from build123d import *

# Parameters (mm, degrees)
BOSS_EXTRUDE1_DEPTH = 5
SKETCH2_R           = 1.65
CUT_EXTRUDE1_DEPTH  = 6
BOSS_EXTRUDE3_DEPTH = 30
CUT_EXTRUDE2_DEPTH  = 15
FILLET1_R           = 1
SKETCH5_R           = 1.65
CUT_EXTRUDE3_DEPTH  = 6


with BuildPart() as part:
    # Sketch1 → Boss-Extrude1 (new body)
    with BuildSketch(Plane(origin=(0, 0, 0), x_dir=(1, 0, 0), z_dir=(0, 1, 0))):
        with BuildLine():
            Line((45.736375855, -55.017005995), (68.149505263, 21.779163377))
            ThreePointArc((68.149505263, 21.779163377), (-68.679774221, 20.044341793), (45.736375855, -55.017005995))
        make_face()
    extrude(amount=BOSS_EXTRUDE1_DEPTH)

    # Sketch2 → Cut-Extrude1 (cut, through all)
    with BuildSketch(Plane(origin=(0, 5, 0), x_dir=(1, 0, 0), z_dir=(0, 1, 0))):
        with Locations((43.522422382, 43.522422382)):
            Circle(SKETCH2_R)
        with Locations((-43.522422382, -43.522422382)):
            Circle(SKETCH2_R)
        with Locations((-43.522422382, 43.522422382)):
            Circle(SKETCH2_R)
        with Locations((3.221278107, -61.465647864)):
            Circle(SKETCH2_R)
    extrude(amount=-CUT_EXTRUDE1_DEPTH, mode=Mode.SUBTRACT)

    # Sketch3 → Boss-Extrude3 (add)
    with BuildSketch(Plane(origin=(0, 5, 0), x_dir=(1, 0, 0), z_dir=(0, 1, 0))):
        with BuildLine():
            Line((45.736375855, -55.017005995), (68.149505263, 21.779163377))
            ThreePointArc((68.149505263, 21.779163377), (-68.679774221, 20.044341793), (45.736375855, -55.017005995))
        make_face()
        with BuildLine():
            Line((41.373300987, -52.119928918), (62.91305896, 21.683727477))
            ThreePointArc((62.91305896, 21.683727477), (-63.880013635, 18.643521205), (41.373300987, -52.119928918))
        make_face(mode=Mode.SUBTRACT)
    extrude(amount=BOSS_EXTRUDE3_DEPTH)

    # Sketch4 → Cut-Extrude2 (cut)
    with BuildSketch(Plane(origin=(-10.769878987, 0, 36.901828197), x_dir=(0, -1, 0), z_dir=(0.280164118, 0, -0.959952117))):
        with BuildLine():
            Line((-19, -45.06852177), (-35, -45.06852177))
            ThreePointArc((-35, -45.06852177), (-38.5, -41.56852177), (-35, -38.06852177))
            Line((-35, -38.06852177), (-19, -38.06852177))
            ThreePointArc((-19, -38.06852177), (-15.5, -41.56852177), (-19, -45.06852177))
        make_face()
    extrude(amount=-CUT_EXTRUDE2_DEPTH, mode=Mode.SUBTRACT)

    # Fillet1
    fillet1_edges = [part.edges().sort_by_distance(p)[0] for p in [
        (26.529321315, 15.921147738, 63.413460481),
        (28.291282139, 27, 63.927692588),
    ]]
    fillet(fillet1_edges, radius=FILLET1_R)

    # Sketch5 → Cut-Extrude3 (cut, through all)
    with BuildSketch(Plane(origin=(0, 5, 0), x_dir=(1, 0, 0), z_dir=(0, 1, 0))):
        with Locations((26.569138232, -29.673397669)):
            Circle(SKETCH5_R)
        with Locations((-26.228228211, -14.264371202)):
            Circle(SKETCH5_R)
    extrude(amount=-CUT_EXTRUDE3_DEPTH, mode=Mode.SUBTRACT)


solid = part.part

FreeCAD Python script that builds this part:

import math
import FreeCAD as App
import Part
import Sketcher
Q = App.Units.Quantity


def edges_at(feature, points):
    """Names of the edges that pass closest to the given points."""
    edges = feature.Shape.Edges
    near = lambda p: min(range(len(edges)), key=lambda i: edges[i].distToShape(Part.Vertex(*p))[0])
    return sorted({f"Edge{near(p) + 1}" for p in points})

doc = App.newDocument("Part")
body = doc.addObject("PartDesign::Body", "Body")

# Sketch on XZ plane
sketch1 = doc.addObject("Sketcher::SketchObject", "Sketch")
body.addObject(sketch1)
sketch1.AttachmentSupport = (doc.XZ_Plane, [""])
sketch1.MapMode = "FlatFace"
sketch1.addGeometry([
    Part.LineSegment(App.Vector(45.736376, 55.017006, 0), App.Vector(68.149505, -21.779163, 0)),
    Part.ArcOfCircle(Part.Circle(App.Vector(0, 0, 0), App.Vector(0, 0, 1), 71.545), math.radians(50.262798), math.radians(342.277202)),
], False)
sketch1.addConstraint([
    Sketcher.Constraint("Coincident", 0, 1, 1, 1),
    Sketcher.Constraint("Coincident", 1, 2, 0, 2),
    Sketcher.Constraint("Coincident", 1, 3, -1, 1),
    Sketcher.Constraint("Distance", 0, 80.0),
    Sketcher.Constraint("Radius", 1, 71.545),
    Sketcher.Constraint("Angle", 0, Q("-73.73 deg")),
])
pad1 = doc.addObject("PartDesign::Pad", "Pad")
body.addObject(pad1)
pad1.Profile = sketch1
pad1.Length = 5
pad1.Reversed = True

# Sketch on XZ plane
sketch2 = doc.addObject("Sketcher::SketchObject", "Sketch001")
body.addObject(sketch2)
sketch2.AttachmentSupport = (doc.XZ_Plane, [""])
sketch2.MapMode = "FlatFace"
sketch2.AttachmentOffset = App.Placement(App.Vector(0, 0, -5), App.Rotation())
sketch2.addGeometry([
    Part.Circle(App.Vector(43.522422, -43.522422, 0), App.Vector(0, 0, 1), 1.65),
    Part.Circle(App.Vector(-43.522422, 43.522422, 0), App.Vector(0, 0, 1), 1.65),
    Part.Circle(App.Vector(-43.522422, -43.522422, 0), App.Vector(0, 0, 1), 1.65),
    Part.Circle(App.Vector(3.221278, 61.465648, 0), App.Vector(0, 0, 1), 1.65),
], False)
sketch2.addConstraint([
    Sketcher.Constraint("Equal", 0, 1),
    Sketcher.Constraint("Equal", 1, 2),
    Sketcher.Constraint("Equal", 2, 3),
    Sketcher.Constraint("Symmetric", 0, 3, 1, 3, -1, 1),
    Sketcher.Constraint("Symmetric", 0, 3, 2, 3, -2),
    Sketcher.Constraint("Diameter", 0, 3.3),
    Sketcher.Constraint("DistanceX", 1, 3, 3, 3, 46.7437),
    Sketcher.Constraint("DistanceX", -1, 1, 3, 3, 3.221278),
    Sketcher.Constraint("DistanceY", 0, 3, 3, 3, 104.98807),
    Sketcher.Constraint("DistanceY", 0, 3, -1, 1, 43.522422),
])
pocket1 = doc.addObject("PartDesign::Pocket", "Pocket")
body.addObject(pocket1)
pocket1.Profile = sketch2
pocket1.Type = "ThroughAll"
pocket1.Reversed = True

# Sketch on XZ plane
sketch3 = doc.addObject("Sketcher::SketchObject", "Sketch002")
body.addObject(sketch3)
sketch3.AttachmentSupport = (doc.XZ_Plane, [""])
sketch3.MapMode = "FlatFace"
sketch3.AttachmentOffset = App.Placement(App.Vector(0, 0, -5), App.Rotation())
sketch3.addGeometry([
    Part.LineSegment(App.Vector(45.736376, 55.017006, 0), App.Vector(68.149505, -21.779163, 0)),
    Part.ArcOfCircle(Part.Circle(App.Vector(0, 0, 0), App.Vector(0, 0, 1), 71.545), math.radians(50.262798), math.radians(342.277202)),
    Part.LineSegment(App.Vector(62.913059, -21.683727, 0), App.Vector(41.373301, 52.119929, 0)),
    Part.ArcOfCircle(Part.Circle(App.Vector(0, 0, 0), App.Vector(0, 0, 1), 66.545), math.radians(51.557116), math.radians(340.982884)),
], False)
sketch3.addConstraint([
    Sketcher.Constraint("Coincident", 0, 1, 1, 1),
    Sketcher.Constraint("Coincident", 1, 2, 0, 2),
    Sketcher.Constraint("Coincident", 2, 1, 3, 2),
    Sketcher.Constraint("Coincident", 3, 1, 2, 2),
    Sketcher.Constraint("Coincident", 1, 3, -1, 1),
    Sketcher.Constraint("Coincident", 3, 3, -1, 1),
    Sketcher.Constraint("Parallel", 0, 2),
    Sketcher.Constraint("Distance", 0, 80.0),
    Sketcher.Constraint("Radius", 1, 71.545),
    Sketcher.Constraint("Radius", 3, 66.545),
    Sketcher.Constraint("Angle", 0, Q("-73.73 deg")),
    Sketcher.Constraint("DistanceX", -1, 1, 3, 1, 41.373301),
])
pad2 = doc.addObject("PartDesign::Pad", "Pad001")
body.addObject(pad2)
pad2.Profile = sketch3
pad2.Length = 30
pad2.Reversed = True

# Sketch on an angled plane
sketch4 = doc.addObject("Sketcher::SketchObject", "Sketch003")
body.addObject(sketch4)
sketch4.Placement = App.Placement(App.Vector(-10.769879, 0, 36.901828), App.Rotation(App.Vector(0, -1, 0), App.Vector(-0.959952117, 0, -0.280164118), App.Vector(0.280164118, 0, -0.959952117), "ZXY"))
sketch4.addGeometry([
    Part.LineSegment(App.Vector(-35, -45.068522, 0), App.Vector(-19, -45.068522, 0)),
    Part.ArcOfCircle(Part.Circle(App.Vector(-19, -41.568522, 0), App.Vector(0, 0, 1), 3.5), math.radians(-90), math.radians(90)),
    Part.LineSegment(App.Vector(-19, -38.068522, 0), App.Vector(-35, -38.068522, 0)),
    Part.ArcOfCircle(Part.Circle(App.Vector(-35, -41.568522, 0), App.Vector(0, 0, 1), 3.5), math.radians(90), math.radians(270)),
], False)
sketch4.addConstraint([
    Sketcher.Constraint("Tangent", 0, 2, 1, 1),
    Sketcher.Constraint("Tangent", 1, 2, 2, 1),
    Sketcher.Constraint("Tangent", 2, 2, 3, 1),
    Sketcher.Constraint("Tangent", 3, 2, 0, 1),
    Sketcher.Constraint("Horizontal", 0),
    Sketcher.Constraint("Horizontal", 2),
    Sketcher.Constraint("Radius", 1, 3.5),
    Sketcher.Constraint("DistanceX", 0, 1, 0, 2, 16.0),
    Sketcher.Constraint("DistanceX", 1, 3, -1, 1, 19.0),
    Sketcher.Constraint("DistanceY", 1, 3, -1, 1, 41.568522),
])
pocket2 = doc.addObject("PartDesign::Pocket", "Pocket001")
body.addObject(pocket2)
pocket2.Profile = sketch4
pocket2.Length = 15
doc.recompute()

fillet = doc.addObject("PartDesign::Fillet", "Fillet")
body.addObject(fillet)
fillet.Base = (pocket2, edges_at(pocket2, [(26.529, 15.921, 63.413), (28.291, 27, 63.928)]))
fillet.Radius = 1

# Sketch on XZ plane
sketch5 = doc.addObject("Sketcher::SketchObject", "Sketch004")
body.addObject(sketch5)
sketch5.AttachmentSupport = (doc.XZ_Plane, [""])
sketch5.MapMode = "FlatFace"
sketch5.AttachmentOffset = App.Placement(App.Vector(0, 0, -5), App.Rotation())
sketch5.addGeometry([
    Part.Circle(App.Vector(26.569138, 29.673398, 0), App.Vector(0, 0, 1), 1.65),
    Part.Circle(App.Vector(-26.228228, 14.264371, 0), App.Vector(0, 0, 1), 1.65),
], False)
sketch5.addConstraint([
    Sketcher.Constraint("Equal", 0, 1),
    Sketcher.Constraint("Diameter", 0, 3.3),
    Sketcher.Constraint("DistanceX", -1, 1, 0, 3, 26.569138),
    Sketcher.Constraint("DistanceX", 1, 3, -1, 1, 26.228228),
    Sketcher.Constraint("DistanceY", -1, 1, 1, 3, 14.264371),
    Sketcher.Constraint("DistanceY", -1, 1, 0, 3, 29.673398),
])
pocket3 = doc.addObject("PartDesign::Pocket", "Pocket002")
body.addObject(pocket3)
pocket3.Profile = sketch5
pocket3.Type = "ThroughAll"
pocket3.Reversed = True

doc.recompute()
